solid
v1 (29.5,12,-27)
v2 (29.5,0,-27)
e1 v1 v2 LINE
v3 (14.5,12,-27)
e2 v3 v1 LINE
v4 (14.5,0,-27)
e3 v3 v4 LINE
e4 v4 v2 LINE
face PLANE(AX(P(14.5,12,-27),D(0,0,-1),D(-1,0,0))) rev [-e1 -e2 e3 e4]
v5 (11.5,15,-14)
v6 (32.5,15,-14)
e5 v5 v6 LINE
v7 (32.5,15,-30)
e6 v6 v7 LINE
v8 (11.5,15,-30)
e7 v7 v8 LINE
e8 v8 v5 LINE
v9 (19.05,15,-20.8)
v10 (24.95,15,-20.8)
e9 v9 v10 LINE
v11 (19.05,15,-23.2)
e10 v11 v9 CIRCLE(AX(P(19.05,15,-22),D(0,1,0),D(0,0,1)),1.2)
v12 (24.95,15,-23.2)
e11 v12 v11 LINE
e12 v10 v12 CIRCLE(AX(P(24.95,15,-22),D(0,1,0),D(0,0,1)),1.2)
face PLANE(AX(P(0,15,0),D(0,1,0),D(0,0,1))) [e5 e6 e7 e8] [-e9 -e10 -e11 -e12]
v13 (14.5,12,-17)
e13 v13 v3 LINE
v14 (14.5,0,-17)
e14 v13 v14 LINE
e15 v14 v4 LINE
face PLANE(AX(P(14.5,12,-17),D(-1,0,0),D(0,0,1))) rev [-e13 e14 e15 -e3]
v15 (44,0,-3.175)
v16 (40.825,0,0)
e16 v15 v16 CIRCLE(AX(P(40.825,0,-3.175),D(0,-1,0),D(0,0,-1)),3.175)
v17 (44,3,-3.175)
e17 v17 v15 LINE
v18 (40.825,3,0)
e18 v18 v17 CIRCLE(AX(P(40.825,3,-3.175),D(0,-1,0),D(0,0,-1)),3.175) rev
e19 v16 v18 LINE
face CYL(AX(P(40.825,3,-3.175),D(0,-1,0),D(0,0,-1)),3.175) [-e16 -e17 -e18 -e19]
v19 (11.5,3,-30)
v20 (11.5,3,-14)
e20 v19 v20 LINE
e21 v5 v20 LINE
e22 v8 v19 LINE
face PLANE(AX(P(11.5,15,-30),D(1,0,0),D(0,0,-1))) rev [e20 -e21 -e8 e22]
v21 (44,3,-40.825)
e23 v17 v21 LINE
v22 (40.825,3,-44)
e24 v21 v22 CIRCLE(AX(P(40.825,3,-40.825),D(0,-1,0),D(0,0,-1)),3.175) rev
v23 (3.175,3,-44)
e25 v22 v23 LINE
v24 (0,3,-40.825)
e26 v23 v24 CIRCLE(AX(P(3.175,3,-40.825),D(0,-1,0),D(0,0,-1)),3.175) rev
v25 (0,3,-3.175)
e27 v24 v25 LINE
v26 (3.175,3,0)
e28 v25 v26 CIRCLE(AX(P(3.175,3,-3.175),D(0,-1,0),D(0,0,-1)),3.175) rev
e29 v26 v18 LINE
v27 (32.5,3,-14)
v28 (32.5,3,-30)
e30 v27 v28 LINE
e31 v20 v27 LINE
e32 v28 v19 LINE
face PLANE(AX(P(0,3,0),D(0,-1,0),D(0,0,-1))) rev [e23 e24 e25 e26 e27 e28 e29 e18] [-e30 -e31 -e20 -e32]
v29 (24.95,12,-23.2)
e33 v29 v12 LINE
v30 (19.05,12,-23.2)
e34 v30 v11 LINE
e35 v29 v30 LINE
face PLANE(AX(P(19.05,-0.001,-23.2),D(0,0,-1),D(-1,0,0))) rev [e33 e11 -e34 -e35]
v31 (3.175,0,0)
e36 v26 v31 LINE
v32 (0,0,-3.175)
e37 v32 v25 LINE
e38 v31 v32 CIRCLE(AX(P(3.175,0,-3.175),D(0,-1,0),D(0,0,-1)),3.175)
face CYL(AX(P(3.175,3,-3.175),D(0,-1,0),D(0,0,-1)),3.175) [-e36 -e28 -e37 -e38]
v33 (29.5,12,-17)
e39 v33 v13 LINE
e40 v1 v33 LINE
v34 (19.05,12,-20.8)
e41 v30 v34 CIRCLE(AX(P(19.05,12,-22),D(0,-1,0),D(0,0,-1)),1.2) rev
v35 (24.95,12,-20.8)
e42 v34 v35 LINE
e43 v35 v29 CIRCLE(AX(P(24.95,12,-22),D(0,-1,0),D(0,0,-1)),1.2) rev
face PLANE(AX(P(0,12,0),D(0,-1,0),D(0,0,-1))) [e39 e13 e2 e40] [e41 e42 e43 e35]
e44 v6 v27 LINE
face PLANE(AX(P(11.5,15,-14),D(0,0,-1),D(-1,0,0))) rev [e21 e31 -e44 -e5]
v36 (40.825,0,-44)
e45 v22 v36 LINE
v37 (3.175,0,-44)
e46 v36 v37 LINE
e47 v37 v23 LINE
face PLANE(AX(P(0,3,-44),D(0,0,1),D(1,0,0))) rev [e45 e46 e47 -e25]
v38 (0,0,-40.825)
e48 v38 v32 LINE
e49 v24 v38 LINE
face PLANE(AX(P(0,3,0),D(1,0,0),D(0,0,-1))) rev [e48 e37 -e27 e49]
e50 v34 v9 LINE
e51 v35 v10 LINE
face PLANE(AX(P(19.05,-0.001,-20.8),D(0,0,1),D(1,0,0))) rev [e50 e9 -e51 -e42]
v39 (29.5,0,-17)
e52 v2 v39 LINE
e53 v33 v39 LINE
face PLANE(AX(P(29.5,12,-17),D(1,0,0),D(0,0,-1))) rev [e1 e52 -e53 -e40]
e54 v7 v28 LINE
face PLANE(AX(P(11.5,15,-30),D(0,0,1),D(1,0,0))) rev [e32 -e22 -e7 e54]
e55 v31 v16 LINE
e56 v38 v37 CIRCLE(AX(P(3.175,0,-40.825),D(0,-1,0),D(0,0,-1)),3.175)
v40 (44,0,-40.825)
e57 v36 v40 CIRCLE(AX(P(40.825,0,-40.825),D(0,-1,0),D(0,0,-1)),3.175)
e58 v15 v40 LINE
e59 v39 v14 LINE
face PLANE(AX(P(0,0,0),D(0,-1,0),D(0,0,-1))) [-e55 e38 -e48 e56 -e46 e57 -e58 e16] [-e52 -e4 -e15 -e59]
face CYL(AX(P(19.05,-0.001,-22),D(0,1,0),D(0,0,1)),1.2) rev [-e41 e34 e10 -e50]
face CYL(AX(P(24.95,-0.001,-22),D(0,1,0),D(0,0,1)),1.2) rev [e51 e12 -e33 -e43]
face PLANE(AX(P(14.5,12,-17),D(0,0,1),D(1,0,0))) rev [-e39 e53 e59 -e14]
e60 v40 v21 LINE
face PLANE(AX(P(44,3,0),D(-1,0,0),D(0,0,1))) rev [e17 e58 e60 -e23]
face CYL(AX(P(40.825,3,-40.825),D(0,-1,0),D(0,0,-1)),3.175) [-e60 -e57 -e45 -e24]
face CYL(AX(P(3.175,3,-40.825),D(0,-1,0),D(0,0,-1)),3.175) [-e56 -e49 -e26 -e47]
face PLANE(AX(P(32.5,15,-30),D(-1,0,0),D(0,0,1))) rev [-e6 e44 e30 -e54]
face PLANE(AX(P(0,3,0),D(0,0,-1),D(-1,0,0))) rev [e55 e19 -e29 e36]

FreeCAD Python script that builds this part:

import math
import FreeCAD as App
import Part
import Sketcher
from FreeCAD import Vector


def edges_at(feature, points):
    """Names of the edges that pass closest to the given points."""
    edges = feature.Shape.Edges
    near = lambda p: min(range(len(edges)), key=lambda i: edges[i].distToShape(Part.Vertex(*p))[0])
    return sorted({f"Edge{near(p) + 1}" for p in points})


def add_polygon(sketch, points):
    """Adds a closed chain of lines whose ends are joined by coincident constraints."""
    first, n = sketch.GeometryCount, len(points)
    for a, b in zip(points, points[1:] + points[:1]):
        sketch.addGeometry(Part.LineSegment(App.Vector(*a, 0), App.Vector(*b, 0)), False)
    for i in range(n):
        sketch.addConstraint(Sketcher.Constraint("Coincident", first + i, 2, first + (i + 1) % n, 1))

doc = App.newDocument("Part")
body = doc.addObject("PartDesign::Body", "Body")

# Sketch on XZ plane
sketch1 = body.newObject("Sketcher::SketchObject", "Sketch")
sketch1.AttachmentSupport = (doc.getObject("XZ_Plane"), [""])
sketch1.MapMode = "FlatFace"
add_polygon(sketch1, [(0, -44), (0, 0), (44, 0), (44, -44)])  # lines 0-3
sketch1.addConstraint([
    Sketcher.Constraint("Vertical", 0),
    Sketcher.Constraint("Horizontal", 1),
    Sketcher.Constraint("Vertical", 2),
    Sketcher.Constraint("Horizontal", 3),
    Sketcher.Constraint("Coincident", 0, 2, -1, 1),
    Sketcher.Constraint("Equal", 3, 0),
    Sketcher.Constraint("DistanceX", 1, 1, 1, 2, 44.0),
])
pad1 = body.newObject("PartDesign::Pad", "Pad")
pad1.Profile = sketch1
pad1.Length = 3
pad1.Reversed = True

# Sketch on XZ plane
sketch2 = body.newObject("Sketcher::SketchObject", "Sketch001")
sketch2.AttachmentSupport = (doc.getObject("XZ_Plane"), [""])
sketch2.MapMode = "FlatFace"
sketch2.AttachmentOffset = App.Placement(Vector(0, 0, -3), App.Rotation())
add_polygon(sketch2, [(12, -30), (12, -14), (32, -14), (32, -30)])  # lines 0-3
sketch2.addConstraint([
    Sketcher.Constraint("Vertical", 0),
    Sketcher.Constraint("Horizontal", 1),
    Sketcher.Constraint("Vertical", 2),
    Sketcher.Constraint("Horizontal", 3),
    Sketcher.Constraint("DistanceX", 1, 1, 1, 2, 21.0),
    Sketcher.Constraint("DistanceY", 0, 1, 0, 2, 16.0),
    Sketcher.Constraint("DistanceY", 0, 2, -1, 1, 14.0),
    Sketcher.Constraint("DistanceX", -1, 1, 0, 2, 11.5),
])
pad2 = body.newObject("PartDesign::Pad", "Pad001")
pad2.Profile = sketch2
pad2.Length = 12
pad2.Reversed = True

# Sketch on XZ plane
sketch3 = body.newObject("Sketcher::SketchObject", "Sketch002")
sketch3.AttachmentSupport = (doc.getObject("XZ_Plane"), [""])
sketch3.MapMode = "FlatFace"
add_polygon(sketch3, [(14, -17), (14, -27), (30, -27), (30, -17)])  # lines 0-3
sketch3.addConstraint([
    Sketcher.Constraint("Vertical", 0),
    Sketcher.Constraint("Horizontal", 1),
    Sketcher.Constraint("Vertical", 2),
    Sketcher.Constraint("Horizontal", 3),
    Sketcher.Constraint("DistanceX", 1, 1, 1, 2, 15.0),
    Sketcher.Constraint("DistanceY", 0, 2, 0, 1, 10.0),
    Sketcher.Constraint("DistanceY", 0, 2, -1, 1, 27.0),
    Sketcher.Constraint("DistanceX", -1, 1, 0, 2, 14.5),
])
pocket1 = body.newObject("PartDesign::Pocket", "Pocket")
pocket1.Profile = sketch3
pocket1.Length = 12

# Sketch on XZ plane
sketch4 = body.newObject("Sketcher::SketchObject", "Sketch003")
sketch4.AttachmentSupport = (doc.getObject("XZ_Plane"), [""])
sketch4.MapMode = "FlatFace"
sketch4.AttachmentOffset = App.Placement(Vector(0, 0, -15), App.Rotation())
sketch4.addGeometry([
    Part.LineSegment(Vector(24.9, -23.2, 0), Vector(19.1, -23.2, 0)),
    Part.ArcOfCircle(Part.Circle(Vector(19.1, -22, 0), Vector(0, 0, 1), 1.2), math.radians(90), math.radians(270)),
    Part.LineSegment(Vector(19.1, -20.8, 0), Vector(24.9, -20.8, 0)),
    Part.ArcOfCircle(Part.Circle(Vector(24.9, -22, 0), Vector(0, 0, 1), 1.2), math.radians(-90), math.radians(90)),
], False)
sketch4.addConstraint([
    Sketcher.Constraint("Tangent", 0, 2, 1, 2),
    Sketcher.Constraint("Tangent", 1, 1, 2, 1),
    Sketcher.Constraint("Tangent", 2, 2, 3, 2),
    Sketcher.Constraint("Tangent", 3, 1, 0, 1),
    Sketcher.Constraint("Horizontal", 0),
    Sketcher.Constraint("Horizontal", 2),
    Sketcher.Constraint("Radius", 1, 1.2),
    Sketcher.Constraint("DistanceX", 0, 2, 0, 1, 5.9),
    Sketcher.Constraint("DistanceY", 1, 3, -1, 1, 22.0),
    Sketcher.Constraint("DistanceX", -1, 1, 1, 3, 19.05),
])
pocket2 = body.newObject("PartDesign::Pocket", "Pocket001")
pocket2.Profile = sketch4
pocket2.Type = "UpToFirst"
pocket2.Reversed = True
doc.recompute()

fillet = body.newObject("PartDesign::Fillet", "Fillet")
fillet.Base = (pocket2, edges_at(pocket2, [
    (0, 1.5, -44),
    (44, 1.5, -44),
    (44, 1.5, 0),
    (0, 1.5, 0),
]))
fillet.Radius = 3.175

doc.recompute()
